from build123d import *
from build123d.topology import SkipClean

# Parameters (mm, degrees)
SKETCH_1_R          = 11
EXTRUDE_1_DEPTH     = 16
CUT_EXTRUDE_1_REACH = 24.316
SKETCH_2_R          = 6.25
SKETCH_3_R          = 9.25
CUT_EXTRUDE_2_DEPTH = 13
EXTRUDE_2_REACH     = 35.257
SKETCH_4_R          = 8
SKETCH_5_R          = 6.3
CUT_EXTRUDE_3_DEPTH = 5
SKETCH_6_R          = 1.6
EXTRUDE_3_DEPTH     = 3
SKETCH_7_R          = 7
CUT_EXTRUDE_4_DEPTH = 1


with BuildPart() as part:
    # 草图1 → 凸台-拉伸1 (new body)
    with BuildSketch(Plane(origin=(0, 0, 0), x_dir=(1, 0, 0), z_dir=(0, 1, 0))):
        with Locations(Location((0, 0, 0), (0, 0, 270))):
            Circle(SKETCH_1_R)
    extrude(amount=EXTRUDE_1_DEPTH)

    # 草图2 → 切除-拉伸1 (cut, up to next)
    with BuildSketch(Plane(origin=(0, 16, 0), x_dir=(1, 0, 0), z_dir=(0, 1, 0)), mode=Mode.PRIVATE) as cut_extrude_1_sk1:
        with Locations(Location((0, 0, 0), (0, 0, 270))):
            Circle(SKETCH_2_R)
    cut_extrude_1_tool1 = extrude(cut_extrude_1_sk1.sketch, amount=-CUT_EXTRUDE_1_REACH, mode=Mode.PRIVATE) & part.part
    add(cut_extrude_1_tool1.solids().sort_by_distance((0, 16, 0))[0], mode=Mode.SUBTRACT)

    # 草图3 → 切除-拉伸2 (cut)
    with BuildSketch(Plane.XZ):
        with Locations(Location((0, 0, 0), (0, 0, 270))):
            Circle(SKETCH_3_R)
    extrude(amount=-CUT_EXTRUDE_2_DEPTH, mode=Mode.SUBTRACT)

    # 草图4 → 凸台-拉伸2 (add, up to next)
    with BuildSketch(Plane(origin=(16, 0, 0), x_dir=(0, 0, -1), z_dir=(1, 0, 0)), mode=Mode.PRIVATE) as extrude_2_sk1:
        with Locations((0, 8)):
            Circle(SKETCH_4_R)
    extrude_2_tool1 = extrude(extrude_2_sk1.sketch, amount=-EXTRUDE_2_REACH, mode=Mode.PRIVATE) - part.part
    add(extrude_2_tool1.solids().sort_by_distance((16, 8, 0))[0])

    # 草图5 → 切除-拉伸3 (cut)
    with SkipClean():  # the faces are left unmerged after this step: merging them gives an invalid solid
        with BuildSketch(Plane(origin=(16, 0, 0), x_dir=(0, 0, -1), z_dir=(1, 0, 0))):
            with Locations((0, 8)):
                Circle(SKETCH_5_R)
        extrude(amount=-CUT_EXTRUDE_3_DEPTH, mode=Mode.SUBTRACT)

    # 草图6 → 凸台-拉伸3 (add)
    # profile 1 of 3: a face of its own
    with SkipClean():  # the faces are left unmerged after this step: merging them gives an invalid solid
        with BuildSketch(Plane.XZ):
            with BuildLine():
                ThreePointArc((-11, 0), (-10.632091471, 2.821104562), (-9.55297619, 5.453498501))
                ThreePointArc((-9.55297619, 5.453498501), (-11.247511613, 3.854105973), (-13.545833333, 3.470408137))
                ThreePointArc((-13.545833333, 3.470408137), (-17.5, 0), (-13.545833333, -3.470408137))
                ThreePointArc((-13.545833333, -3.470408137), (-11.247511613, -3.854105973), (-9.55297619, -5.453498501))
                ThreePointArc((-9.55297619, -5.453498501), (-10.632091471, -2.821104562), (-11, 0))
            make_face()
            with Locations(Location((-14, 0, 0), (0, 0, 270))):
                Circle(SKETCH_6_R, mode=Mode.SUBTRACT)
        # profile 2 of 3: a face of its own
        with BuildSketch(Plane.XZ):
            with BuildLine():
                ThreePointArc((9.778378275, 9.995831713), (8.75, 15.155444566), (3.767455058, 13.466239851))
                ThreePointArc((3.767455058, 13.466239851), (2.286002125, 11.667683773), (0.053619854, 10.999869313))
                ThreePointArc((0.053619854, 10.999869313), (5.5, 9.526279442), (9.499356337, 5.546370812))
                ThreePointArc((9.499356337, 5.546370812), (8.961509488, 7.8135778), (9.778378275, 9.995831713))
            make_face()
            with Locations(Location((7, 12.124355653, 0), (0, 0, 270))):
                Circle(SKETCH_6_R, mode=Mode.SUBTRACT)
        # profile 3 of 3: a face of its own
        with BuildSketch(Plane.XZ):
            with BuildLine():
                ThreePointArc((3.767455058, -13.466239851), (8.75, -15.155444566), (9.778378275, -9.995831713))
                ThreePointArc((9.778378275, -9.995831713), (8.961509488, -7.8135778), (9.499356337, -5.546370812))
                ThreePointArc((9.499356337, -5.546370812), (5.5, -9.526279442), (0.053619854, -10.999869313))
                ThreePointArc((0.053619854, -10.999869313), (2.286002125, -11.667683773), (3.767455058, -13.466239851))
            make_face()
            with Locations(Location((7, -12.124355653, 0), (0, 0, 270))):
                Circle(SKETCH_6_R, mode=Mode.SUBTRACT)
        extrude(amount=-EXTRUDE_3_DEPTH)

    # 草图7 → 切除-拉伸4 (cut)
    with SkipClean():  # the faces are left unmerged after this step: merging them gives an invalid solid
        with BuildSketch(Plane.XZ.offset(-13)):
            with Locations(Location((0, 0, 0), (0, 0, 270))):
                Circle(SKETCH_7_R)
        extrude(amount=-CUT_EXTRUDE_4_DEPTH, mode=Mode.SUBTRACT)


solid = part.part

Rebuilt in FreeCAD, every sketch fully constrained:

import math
import FreeCAD as App
import Part
import Sketcher

V = App.Vector
Q = App.Units.Quantity

doc = App.newDocument("Part")
body = doc.addObject("PartDesign::Body", "Body")

# Sketch on XZ plane
sketch1 = body.newObject("Sketcher::SketchObject", "Sketch")
sketch1.AttachmentSupport = (doc.getObject("XZ_Plane"), [""])
sketch1.MapMode = "FlatFace"
sketch1.addGeometry(Part.Circle(V(0, 0, 0), V(0, 0, 1), 11), False)
sketch1.addConstraint(Sketcher.Constraint("Coincident", 0, 3, -1, 1))
sketch1.addConstraint(Sketcher.Constraint("Diameter", 0, Q("22 mm")))
pad1 = body.newObject("PartDesign::Pad", "Pad")
pad1.Profile = sketch1
pad1.Length = 16
pad1.Reversed = True

# Sketch on XZ plane
sketch2 = body.newObject("Sketcher::SketchObject", "Sketch001")
sketch2.AttachmentSupport = (doc.getObject("XZ_Plane"), [""])
sketch2.MapMode = "FlatFace"
sketch2.AttachmentOffset = App.Placement(V(0, 0, -16), App.Rotation())
sketch2.addGeometry(Part.Circle(V(0, 0, 0), V(0, 0, 1), 6.25), False)
sketch2.addConstraint(Sketcher.Constraint("Coincident", 0, 3, -1, 1))
sketch2.addConstraint(Sketcher.Constraint("Diameter", 0, Q("12.5 mm")))
pocket1 = body.newObject("PartDesign::Pocket", "Pocket")
pocket1.Profile = sketch2
pocket1.Type = "UpToFirst"
pocket1.Reversed = True

# Sketch on XZ plane
sketch3 = body.newObject("Sketcher::SketchObject", "Sketch002")
sketch3.AttachmentSupport = (doc.getObject("XZ_Plane"), [""])
sketch3.MapMode = "FlatFace"
sketch3.addGeometry(Part.Circle(V(0, 0, 0), V(0, 0, 1), 9.25), False)
sketch3.addConstraint(Sketcher.Constraint("Coincident", 0, 3, -1, 1))
sketch3.addConstraint(Sketcher.Constraint("Diameter", 0, Q("18.5 mm")))
pocket2 = body.newObject("PartDesign::Pocket", "Pocket001")
pocket2.Profile = sketch3
pocket2.Length = 13

# Sketch on YZ plane
sketch4 = body.newObject("Sketcher::SketchObject", "Sketch003")
sketch4.AttachmentSupport = (doc.getObject("YZ_Plane"), [""])
sketch4.MapMode = "FlatFace"
sketch4.AttachmentOffset = App.Placement(V(0, 0, 16), App.Rotation())
sketch4.addGeometry(Part.Circle(V(8, 0, 0), V(0, 0, 1), 8), False)
sketch4.addConstraint(Sketcher.Constraint("PointOnObject", 0, 3, -1))
sketch4.addConstraint(Sketcher.Constraint("Diameter", 0, Q("16 mm")))
sketch4.addConstraint(Sketcher.Constraint("DistanceX", -1, 1, 0, 3, Q("8 mm")))
pad2 = body.newObject("PartDesign::Pad", "Pad001")
pad2.Profile = sketch4
pad2.Type = "UpToFirst"
pad2.Reversed = True

# Sketch on YZ plane
sketch5 = body.newObject("Sketcher::SketchObject", "Sketch004")
sketch5.AttachmentSupport = (doc.getObject("YZ_Plane"), [""])
sketch5.MapMode = "FlatFace"
sketch5.AttachmentOffset = App.Placement(V(0, 0, 16), App.Rotation())
sketch5.addGeometry(Part.Circle(V(8, 0, 0), V(0, 0, 1), 6.3), False)
sketch5.addConstraint(Sketcher.Constraint("PointOnObject", 0, 3, -1))
sketch5.addConstraint(Sketcher.Constraint("Diameter", 0, Q("12.6 mm")))
sketch5.addConstraint(Sketcher.Constraint("DistanceX", -1, 1, 0, 3, Q("8 mm")))
pocket3 = body.newObject("PartDesign::Pocket", "Pocket002")
pocket3.Profile = sketch5
pocket3.Length = 5

# Sketch on XZ plane
sketch6 = body.newObject("Sketcher::SketchObject", "Sketch005")
sketch6.AttachmentSupport = (doc.getObject("XZ_Plane"), [""])
sketch6.MapMode = "FlatFace"
sketch6.addGeometry(Part.ArcOfCircle(Part.Circle(V(0, 0, 0), V(0, 0, 1), 11), math.radians(150.279291), math.radians(180)), False)
sketch6.addGeometry(Part.ArcOfCircle(Part.Circle(V(-13.026786, 7.436589, 0), V(0, 0, 1), 4), math.radians(-97.455834), math.radians(-29.720709)), False)
sketch6.addGeometry(Part.ArcOfCircle(Part.Circle(V(-14, 0, 0), V(0, 0, 1), 3.5), math.radians(82.544166), math.radians(277.455834)), False)
sketch6.addGeometry(Part.ArcOfCircle(Part.Circle(V(-13.026786, -7.436589, 0), V(0, 0, 1), 4), math.radians(29.720709), math.radians(97.455834)), False)
sketch6.addGeometry(Part.ArcOfCircle(Part.Circle(V(0, 0, 0), V(0, 0, 1), 11), math.radians(180), math.radians(209.720709)), False)
sketch6.addGeometry(Part.Circle(V(-14, 0, 0), V(0, 0, 1), 1.6), False)
sketch6.addGeometry(Part.ArcOfCircle(Part.Circle(V(7, 12.124356, 0), V(0, 0, 1), 3.5), math.radians(-37.455834), math.radians(157.455834)), False)
sketch6.addGeometry(Part.ArcOfCircle(Part.Circle(V(0.073118, 14.999822, 0), V(0, 0, 1), 4), math.radians(-90.279291), math.radians(-22.544166)), False)
sketch6.addGeometry(Part.ArcOfCircle(Part.Circle(V(0, 0, 0), V(0, 0, 1), 11), math.radians(30.279291), math.radians(89.720709)), False)
sketch6.addGeometry(Part.ArcOfCircle(Part.Circle(V(12.953668, 7.563233, 0), V(0, 0, 1), 4), math.radians(142.544166), math.radians(210.279291)), False)
sketch6.addGeometry(Part.Circle(V(7, 12.124356, 0), V(0, 0, 1), 1.6), False)
sketch6.addGeometry(Part.ArcOfCircle(Part.Circle(V(7, -12.124356, 0), V(0, 0, 1), 3.5), math.radians(-157.455834), math.radians(37.455834)), False)
sketch6.addGeometry(Part.ArcOfCircle(Part.Circle(V(12.953668, -7.563233, 0), V(0, 0, 1), 4), math.radians(149.720709), math.radians(217.455834)), False)
sketch6.addGeometry(Part.ArcOfCircle(Part.Circle(V(0, 0, 0), V(0, 0, 1), 11), math.radians(-89.720709), math.radians(-30.279291)), False)
sketch6.addGeometry(Part.ArcOfCircle(Part.Circle(V(0.073118, -14.999822, 0), V(0, 0, 1), 4), math.radians(22.544166), math.radians(90.279291)), False)
sketch6.addGeometry(Part.Circle(V(7, -12.124356, 0), V(0, 0, 1), 1.6), False)
sketch6.addConstraint(Sketcher.Constraint("Tangent", 0, 1, 1, 2))
sketch6.addConstraint(Sketcher.Constraint("Tangent", 1, 1, 2, 1))
sketch6.addConstraint(Sketcher.Constraint("Tangent", 2, 2, 3, 2))
sketch6.addConstraint(Sketcher.Constraint("Tangent", 3, 1, 4, 2))
sketch6.addConstraint(Sketcher.Constraint("Tangent", 4, 1, 0, 2))
sketch6.addConstraint(Sketcher.Constraint("Tangent", 6, 2, 7, 2))
sketch6.addConstraint(Sketcher.Constraint("Tangent", 7, 1, 8, 2))
sketch6.addConstraint(Sketcher.Constraint("Tangent", 8, 1, 9, 2))
sketch6.addConstraint(Sketcher.Constraint("Tangent", 9, 1, 6, 1))
sketch6.addConstraint(Sketcher.Constraint("Tangent", 11, 2, 12, 2))
sketch6.addConstraint(Sketcher.Constraint("Tangent", 12, 1, 13, 2))
sketch6.addConstraint(Sketcher.Constraint("Tangent", 13, 1, 14, 2))
sketch6.addConstraint(Sketcher.Constraint("Tangent", 14, 1, 11, 1))
sketch6.addConstraint(Sketcher.Constraint("Coincident", 0, 3, -1, 1))
sketch6.addConstraint(Sketcher.Constraint("Coincident", 8, 3, -1, 1))
sketch6.addConstraint(Sketcher.Constraint("Coincident", 13, 3, -1, 1))
sketch6.addConstraint(Sketcher.Constraint("Coincident", 5, 3, 2, 3))
sketch6.addConstraint(Sketcher.Constraint("Coincident", 10, 3, 6, 3))
sketch6.addConstraint(Sketcher.Constraint("Coincident", 15, 3, 11, 3))
sketch6.addConstraint(Sketcher.Constraint("Equal", 1, 3))
sketch6.addConstraint(Sketcher.Constraint("Equal", 0, 4))
sketch6.addConstraint(Sketcher.Constraint("Equal", 2, 6))
sketch6.addConstraint(Sketcher.Constraint("Equal", 3, 7))
sketch6.addConstraint(Sketcher.Constraint("Equal", 4, 8))
sketch6.addConstraint(Sketcher.Constraint("Equal", 7, 9))
sketch6.addConstraint(Sketcher.Constraint("Equal", 5, 10))
sketch6.addConstraint(Sketcher.Constraint("Equal", 6, 11))
sketch6.addConstraint(Sketcher.Constraint("Equal", 9, 12))
sketch6.addConstraint(Sketcher.Constraint("Equal", 8, 13))
sketch6.addConstraint(Sketcher.Constraint("Equal", 12, 14))
sketch6.addConstraint(Sketcher.Constraint("Equal", 10, 15))
sketch6.addConstraint(Sketcher.Constraint("Symmetric", 6, 3, 11, 3, -1))
sketch6.addConstraint(Sketcher.Constraint("PointOnObject", 2, 3, -1))
sketch6.addConstraint(Sketcher.Constraint("PointOnObject", 4, 1, -1))
sketch6.addConstraint(Sketcher.Constraint("Radius", 0, Q("11 mm")))
sketch6.addConstraint(Sketcher.Constraint("Radius", 1, Q("4 mm")))
sketch6.addConstraint(Sketcher.Constraint("Diameter", 5, Q("3.2 mm")))
sketch6.addConstraint(Sketcher.Constraint("Radius", 2, Q("3.5 mm")))
sketch6.addConstraint(Sketcher.Constraint("DistanceX", 2, 3, -1, 1, Q("14 mm")))
sketch6.addConstraint(Sketcher.Constraint("DistanceX", -1, 1, 6, 3, Q("7 mm")))
sketch6.addConstraint(Sketcher.Constraint("DistanceX", 7, 1, 7, 3, Q("0.019498 mm")))
pad3 = body.newObject("PartDesign::Pad", "Pad002")
pad3.Profile = sketch6
pad3.Length = 3
pad3.Reversed = True

# Sketch on XZ plane
sketch7 = body.newObject("Sketcher::SketchObject", "Sketch006")
sketch7.AttachmentSupport = (doc.getObject("XZ_Plane"), [""])
sketch7.MapMode = "FlatFace"
sketch7.AttachmentOffset = App.Placement(V(0, 0, -13), App.Rotation())
sketch7.addGeometry(Part.Circle(V(0, 0, 0), V(0, 0, 1), 7), False)
sketch7.addConstraint(Sketcher.Constraint("Coincident", 0, 3, -1, 1))
sketch7.addConstraint(Sketcher.Constraint("Diameter", 0, Q("14 mm")))
pocket4 = body.newObject("PartDesign::Pocket", "Pocket003")
pocket4.Profile = sketch7
pocket4.Length = 1

doc.recompute()
